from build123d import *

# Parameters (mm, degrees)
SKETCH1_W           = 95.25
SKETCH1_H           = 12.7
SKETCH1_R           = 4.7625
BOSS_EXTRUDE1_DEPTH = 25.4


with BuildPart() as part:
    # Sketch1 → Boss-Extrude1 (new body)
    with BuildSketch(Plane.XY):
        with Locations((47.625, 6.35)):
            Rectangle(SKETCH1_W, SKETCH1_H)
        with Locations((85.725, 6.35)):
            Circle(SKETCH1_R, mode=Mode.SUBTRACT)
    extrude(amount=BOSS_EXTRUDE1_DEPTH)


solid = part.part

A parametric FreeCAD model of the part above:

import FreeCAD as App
import Part
import Sketcher
from FreeCAD import Vector
Q = App.Units.Quantity

doc = App.newDocument("Part")
body = doc.addObject("PartDesign::Body", "Body")

# Sketch on XY plane
sketch1 = doc.addObject("Sketcher::SketchObject", "Sketch")
body.addObject(sketch1)
sketch1.AttachmentSupport = (doc.XY_Plane, [""])
sketch1.MapMode = "FlatFace"
sketch1.addGeometry([
    Part.LineSegment(Vector(0, 12.7, 0), Vector(0, 0, 0)),  # 0
    Part.LineSegment(Vector(0, 0, 0), Vector(95.25, 0, 0)),  # 1
    Part.LineSegment(Vector(95.25, 0, 0), Vector(95.25, 12.7, 0)),  # 2
    Part.LineSegment(Vector(95.25, 12.7, 0), Vector(0, 12.7, 0)),  # 3
    Part.Circle(Vector(85.725, 6.35, 0), Vector(0, 0, 1), 4.7625),  # 4
], False)
sketch1.addConstraint([
    Sketcher.Constraint("Coincident", 0, 2, 1, 1),
    Sketcher.Constraint("Coincident", 1, 2, 2, 1),
    Sketcher.Constraint("Coincident", 2, 2, 3, 1),
    Sketcher.Constraint("Coincident", 3, 2, 0, 1),
    Sketcher.Constraint("Vertical", 0),
    Sketcher.Constraint("Horizontal", 1),
    Sketcher.Constraint("Vertical", 2),
    Sketcher.Constraint("Horizontal", 3),
    Sketcher.Constraint("Coincident", 0, 2, -1, 1),
    Sketcher.Constraint("Diameter", 4, Q("0.375 in")),
    Sketcher.Constraint("DistanceY", 0, 2, 0, 1, Q("0.5 in")),
    Sketcher.Constraint("DistanceX", 1, 1, 1, 2, Q("3.75 in")),
    Sketcher.Constraint("DistanceY", -1, 1, 4, 3, Q("0.25 in")),
    Sketcher.Constraint("DistanceX", -1, 1, 4, 3, Q("3.375 in")),
])
pad1 = doc.addObject("PartDesign::Pad", "Pad")
body.addObject(pad1)
pad1.Profile = sketch1
pad1.Length = Q("1 in")

doc.recompute()
